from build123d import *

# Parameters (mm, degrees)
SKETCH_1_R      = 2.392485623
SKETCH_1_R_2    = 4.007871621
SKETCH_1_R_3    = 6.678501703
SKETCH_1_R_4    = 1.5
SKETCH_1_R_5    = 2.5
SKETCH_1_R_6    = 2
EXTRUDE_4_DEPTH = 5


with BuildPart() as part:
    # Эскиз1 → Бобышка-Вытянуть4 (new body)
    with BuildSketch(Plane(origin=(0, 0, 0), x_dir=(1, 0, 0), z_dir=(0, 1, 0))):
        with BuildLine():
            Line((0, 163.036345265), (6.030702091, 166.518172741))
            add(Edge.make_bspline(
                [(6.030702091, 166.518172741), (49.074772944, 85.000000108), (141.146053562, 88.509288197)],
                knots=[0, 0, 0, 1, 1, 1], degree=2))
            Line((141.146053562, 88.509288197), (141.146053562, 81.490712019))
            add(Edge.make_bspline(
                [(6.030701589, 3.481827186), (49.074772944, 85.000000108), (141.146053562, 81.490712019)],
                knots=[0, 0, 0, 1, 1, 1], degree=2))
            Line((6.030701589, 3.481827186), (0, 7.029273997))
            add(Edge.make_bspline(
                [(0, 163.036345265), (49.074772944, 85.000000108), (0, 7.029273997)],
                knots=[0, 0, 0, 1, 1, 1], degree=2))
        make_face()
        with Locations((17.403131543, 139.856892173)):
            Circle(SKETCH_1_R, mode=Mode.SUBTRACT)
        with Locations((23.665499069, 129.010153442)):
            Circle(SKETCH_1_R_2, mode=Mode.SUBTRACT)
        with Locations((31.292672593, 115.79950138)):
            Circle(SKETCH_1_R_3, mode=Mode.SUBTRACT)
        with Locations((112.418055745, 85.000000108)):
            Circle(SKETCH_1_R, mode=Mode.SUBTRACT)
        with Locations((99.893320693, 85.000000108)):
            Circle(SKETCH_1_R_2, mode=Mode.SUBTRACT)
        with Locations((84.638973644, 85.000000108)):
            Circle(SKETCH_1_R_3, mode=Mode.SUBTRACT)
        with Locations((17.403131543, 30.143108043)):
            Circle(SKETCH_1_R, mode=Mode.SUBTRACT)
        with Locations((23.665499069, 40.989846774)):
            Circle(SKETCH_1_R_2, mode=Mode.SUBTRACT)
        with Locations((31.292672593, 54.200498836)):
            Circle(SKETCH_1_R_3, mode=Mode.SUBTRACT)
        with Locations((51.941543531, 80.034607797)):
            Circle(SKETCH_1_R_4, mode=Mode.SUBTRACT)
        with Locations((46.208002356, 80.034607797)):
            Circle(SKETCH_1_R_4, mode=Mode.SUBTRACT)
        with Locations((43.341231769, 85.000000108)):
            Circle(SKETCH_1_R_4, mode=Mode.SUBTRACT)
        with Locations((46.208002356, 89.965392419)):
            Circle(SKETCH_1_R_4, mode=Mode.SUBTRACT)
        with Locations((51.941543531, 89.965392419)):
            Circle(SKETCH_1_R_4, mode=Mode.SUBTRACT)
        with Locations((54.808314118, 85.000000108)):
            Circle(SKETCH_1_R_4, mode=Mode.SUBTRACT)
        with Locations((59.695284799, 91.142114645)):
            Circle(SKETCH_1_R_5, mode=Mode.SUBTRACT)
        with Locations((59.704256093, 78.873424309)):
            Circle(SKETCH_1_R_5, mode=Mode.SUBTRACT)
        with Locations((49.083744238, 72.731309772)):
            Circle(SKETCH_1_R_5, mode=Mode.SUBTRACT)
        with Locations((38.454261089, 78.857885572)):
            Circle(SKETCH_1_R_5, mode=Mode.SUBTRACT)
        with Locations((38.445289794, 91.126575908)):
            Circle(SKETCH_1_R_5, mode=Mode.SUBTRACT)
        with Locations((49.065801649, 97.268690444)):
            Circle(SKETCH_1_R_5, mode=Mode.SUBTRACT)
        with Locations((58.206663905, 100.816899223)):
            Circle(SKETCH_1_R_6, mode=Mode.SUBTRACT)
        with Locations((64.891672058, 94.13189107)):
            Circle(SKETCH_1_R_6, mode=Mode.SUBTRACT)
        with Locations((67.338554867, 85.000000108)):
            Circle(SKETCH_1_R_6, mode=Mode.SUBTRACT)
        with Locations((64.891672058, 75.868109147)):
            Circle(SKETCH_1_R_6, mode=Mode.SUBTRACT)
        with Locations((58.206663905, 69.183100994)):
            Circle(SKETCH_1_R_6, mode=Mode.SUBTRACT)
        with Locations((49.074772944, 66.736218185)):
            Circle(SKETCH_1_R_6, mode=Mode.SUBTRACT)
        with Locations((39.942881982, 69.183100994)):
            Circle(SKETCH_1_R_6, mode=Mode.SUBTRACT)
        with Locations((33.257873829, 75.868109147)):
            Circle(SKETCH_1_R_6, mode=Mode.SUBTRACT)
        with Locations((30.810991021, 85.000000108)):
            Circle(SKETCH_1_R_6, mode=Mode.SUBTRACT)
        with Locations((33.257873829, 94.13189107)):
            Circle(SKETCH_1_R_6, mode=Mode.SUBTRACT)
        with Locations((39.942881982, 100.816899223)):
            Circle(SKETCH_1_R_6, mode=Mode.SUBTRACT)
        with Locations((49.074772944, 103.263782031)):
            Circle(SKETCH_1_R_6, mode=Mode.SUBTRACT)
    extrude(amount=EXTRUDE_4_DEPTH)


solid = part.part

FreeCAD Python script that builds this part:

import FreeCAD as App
import Part
import Sketcher
Q = App.Units.Quantity

doc = App.newDocument("Part")
body = doc.addObject("PartDesign::Body", "Body")

sketch1 = doc.addObject("Sketcher::SketchObject", "Sketch")
body.addObject(sketch1)
sketch1.AttachmentSupport = (doc.XZ_Plane, [""])
sketch1.MapMode = "FlatFace"
sketch1.addGeometry([
    Part.LineSegment(App.Vector(6.030702, -166.518173, 0), App.Vector(0, -163.036345, 0)),
    Part.BSplineCurve([App.Vector(0, -163.036345, 0), App.Vector(49.074773, -85, 0), App.Vector(0, -7.029274, 0)], [3, 3], [0, 1], False, 2, [1, 1, 1], False),
    Part.LineSegment(App.Vector(0, -7.029274, 0), App.Vector(6.030702, -3.481827, 0)),
    Part.BSplineCurve([App.Vector(6.030702, -3.481827, 0), App.Vector(49.074773, -85, 0), App.Vector(141.146054, -81.490712, 0)], [3, 3], [0, 1], False, 2, [1, 1, 1], False),
    Part.LineSegment(App.Vector(141.146054, -81.490712, 0), App.Vector(141.146054, -88.509288, 0)),
    Part.BSplineCurve([App.Vector(6.030702, -166.518173, 0), App.Vector(49.074773, -85, 0), App.Vector(141.146054, -88.509288, 0)], [3, 3], [0, 1], False, 2, [1, 1, 1], False),
    Part.Circle(App.Vector(112.418056, -85, 0), App.Vector(0, 0, 1), 2.392486),
    Part.Circle(App.Vector(99.893321, -85, 0), App.Vector(0, 0, 1), 4.007872),
    Part.Circle(App.Vector(84.638974, -85, 0), App.Vector(0, 0, 1), 6.678502),
    Part.Circle(App.Vector(67.338555, -85, 0), App.Vector(0, 0, 1), 2),
    Part.Circle(App.Vector(17.403132, -30.143108, 0), App.Vector(0, 0, 1), 2.392486),
    Part.Circle(App.Vector(23.665499, -40.989847, 0), App.Vector(0, 0, 1), 4.007872),
    Part.Circle(App.Vector(31.292673, -54.200499, 0), App.Vector(0, 0, 1), 6.678502),
    Part.Circle(App.Vector(58.206664, -69.183101, 0), App.Vector(0, 0, 1), 2),
    Part.Circle(App.Vector(49.074773, -66.736218, 0), App.Vector(0, 0, 1), 2),
    Part.Circle(App.Vector(64.891672, -75.868109, 0), App.Vector(0, 0, 1), 2),
    Part.Circle(App.Vector(59.704256, -78.873424, 0), App.Vector(0, 0, 1), 2.5),
    Part.Circle(App.Vector(54.808314, -85, 0), App.Vector(0, 0, 1), 1.5),
    Part.Circle(App.Vector(49.083744, -72.73131, 0), App.Vector(0, 0, 1), 2.5),
    Part.Circle(App.Vector(51.941544, -80.034608, 0), App.Vector(0, 0, 1), 1.5),
    Part.Circle(App.Vector(46.208002, -80.034608, 0), App.Vector(0, 0, 1), 1.5),
    Part.Circle(App.Vector(43.341232, -85, 0), App.Vector(0, 0, 1), 1.5),
    Part.Circle(App.Vector(39.942882, -69.183101, 0), App.Vector(0, 0, 1), 2),
    Part.Circle(App.Vector(33.257874, -75.868109, 0), App.Vector(0, 0, 1), 2),
    Part.Circle(App.Vector(38.454261, -78.857886, 0), App.Vector(0, 0, 1), 2.5),
    Part.Circle(App.Vector(30.810991, -85, 0), App.Vector(0, 0, 1), 2),
    Part.Circle(App.Vector(59.695285, -91.142115, 0), App.Vector(0, 0, 1), 2.5),
    Part.Circle(App.Vector(64.891672, -94.131891, 0), App.Vector(0, 0, 1), 2),
    Part.Circle(App.Vector(51.941544, -89.965392, 0), App.Vector(0, 0, 1), 1.5),
    Part.Circle(App.Vector(46.208002, -89.965392, 0), App.Vector(0, 0, 1), 1.5),
    Part.Circle(App.Vector(49.065802, -97.26869, 0), App.Vector(0, 0, 1), 2.5),
    Part.Circle(App.Vector(58.206664, -100.816899, 0), App.Vector(0, 0, 1), 2),
    Part.Circle(App.Vector(49.074773, -103.263782, 0), App.Vector(0, 0, 1), 2),
    Part.Circle(App.Vector(38.44529, -91.126576, 0), App.Vector(0, 0, 1), 2.5),
    Part.Circle(App.Vector(33.257874, -94.131891, 0), App.Vector(0, 0, 1), 2),
    Part.Circle(App.Vector(39.942882, -100.816899, 0), App.Vector(0, 0, 1), 2),
    Part.Circle(App.Vector(31.292673, -115.799501, 0), App.Vector(0, 0, 1), 6.678502),
    Part.Circle(App.Vector(23.665499, -129.010153, 0), App.Vector(0, 0, 1), 4.007872),
    Part.Circle(App.Vector(17.403132, -139.856892, 0), App.Vector(0, 0, 1), 2.392486),
], False)
sketch1.addConstraint([
    Sketcher.Constraint("Block", 1),
    Sketcher.Constraint("Block", 3),
    Sketcher.Constraint("Block", 5),
    Sketcher.Constraint("Coincident", 0, 2, 1, 1),
    Sketcher.Constraint("Coincident", 1, 2, 2, 1),
    Sketcher.Constraint("Coincident", 2, 2, 3, 1),
    Sketcher.Constraint("Coincident", 3, 2, 4, 1),
    Sketcher.Constraint("Coincident", 4, 2, 5, 2),
    Sketcher.Constraint("Coincident", 5, 1, 0, 1),
    Sketcher.Constraint("Equal", 6, 10),
    Sketcher.Constraint("Equal", 7, 11),
    Sketcher.Constraint("Equal", 8, 12),
    Sketcher.Constraint("Equal", 9, 13),
    Sketcher.Constraint("Equal", 13, 14),
    Sketcher.Constraint("Equal", 14, 15),
    Sketcher.Constraint("Equal", 16, 18),
    Sketcher.Constraint("Equal", 17, 19),
    Sketcher.Constraint("Equal", 19, 20),
    Sketcher.Constraint("Equal", 20, 21),
    Sketcher.Constraint("Equal", 15, 22),
    Sketcher.Constraint("Equal", 22, 23),
    Sketcher.Constraint("Equal", 18, 24),
    Sketcher.Constraint("Equal", 23, 25),
    Sketcher.Constraint("Equal", 24, 26),
    Sketcher.Constraint("Equal", 25, 27),
    Sketcher.Constraint("Equal", 21, 28),
    Sketcher.Constraint("Equal", 28, 29),
    Sketcher.Constraint("Equal", 26, 30),
    Sketcher.Constraint("Equal", 27, 31),
    Sketcher.Constraint("Equal", 31, 32),
    Sketcher.Constraint("Equal", 30, 33),
    Sketcher.Constraint("Equal", 32, 34),
    Sketcher.Constraint("Equal", 34, 35),
    Sketcher.Constraint("Equal", 12, 36),
    Sketcher.Constraint("Equal", 11, 37),
    Sketcher.Constraint("Equal", 10, 38),
    Sketcher.Constraint("Horizontal", 6, 3, 7, 3),
    Sketcher.Constraint("Horizontal", 7, 3, 8, 3),
    Sketcher.Constraint("Horizontal", 8, 3, 9, 3),
    Sketcher.Constraint("Horizontal", 9, 3, 17, 3),
    Sketcher.Constraint("Horizontal", 19, 3, 20, 3),
    Sketcher.Constraint("Horizontal", 17, 3, 21, 3),
    Sketcher.Constraint("Horizontal", 13, 3, 22, 3),
    Sketcher.Constraint("Horizontal", 15, 3, 23, 3),
    Sketcher.Constraint("Horizontal", 21, 3, 25, 3),
    Sketcher.Constraint("Horizontal", 28, 3, 29, 3),
    Sketcher.Constraint("Horizontal", 27, 3, 34, 3),
    Sketcher.Constraint("Horizontal", 31, 3, 35, 3),
    Sketcher.Constraint("Vertical", 15, 3, 27, 3),
    Sketcher.Constraint("Vertical", 19, 3, 28, 3),
    Sketcher.Constraint("Vertical", 20, 3, 29, 3),
    Sketcher.Constraint("Vertical", 13, 3, 31, 3),
    Sketcher.Constraint("Vertical", 14, 3, 32, 3),
    Sketcher.Constraint("Vertical", 23, 3, 34, 3),
    Sketcher.Constraint("Vertical", 22, 3, 35, 3),
    Sketcher.Constraint("Vertical", 12, 3, 36, 3),
    Sketcher.Constraint("Vertical", 11, 3, 37, 3),
    Sketcher.Constraint("Vertical", 10, 3, 38, 3),
    Sketcher.Constraint("Diameter", 9, Q("4 mm")),
    Sketcher.Constraint("Diameter", 16, Q("5 mm")),
    Sketcher.Constraint("Diameter", 17, Q("3 mm")),
    Sketcher.Constraint("DistanceY", 6, 3, -1, 1, Q("85 mm")),
    Sketcher.Constraint("Diameter", 6, Q("4.784971 mm")),
    Sketcher.Constraint("Diameter", 7, Q("8.015743 mm")),
    Sketcher.Constraint("Diameter", 8, Q("13.357003 mm")),
    Sketcher.Constraint("DistanceY", 38, 3, 34, 3, Q("45.725001 mm")),
    Sketcher.Constraint("DistanceX", -1, 1, 11, 3, Q("23.665499 mm")),
    Sketcher.Constraint("DistanceY", 12, 3, -1, 1, Q("54.200499 mm")),
    Sketcher.Constraint("DistanceY", 13, 3, -1, 1, Q("69.183101 mm")),
    Sketcher.Constraint("DistanceX", -1, 1, 30, 3, Q("49.065802 mm")),
    Sketcher.Constraint("DistanceY", 31, 3, -1, 1, Q("100.816899 mm")),
    Sketcher.Constraint("DistanceY", 36, 3, -1, 1, Q("115.799501 mm")),
    Sketcher.Constraint("DistanceX", 9, 3, 6, 3, Q("45.079501 mm")),
    Sketcher.Constraint("DistanceX", 12, 3, 8, 3, Q("53.346301 mm")),
    Sketcher.Constraint("DistanceX", 12, 3, 14, 3, Q("17.7821 mm")),
    Sketcher.Constraint("DistanceX", 14, 3, 15, 3, Q("15.816899 mm")),
    Sketcher.Constraint("DistanceX", 16, 3, 9, 3, Q("7.634299 mm")),
    Sketcher.Constraint("DistanceY", 15, 3, 18, 3, Q("3.136799 mm")),
    Sketcher.Constraint("DistanceX", 18, 3, 19, 3, Q("2.857799 mm")),
    Sketcher.Constraint("DistanceY", 19, 3, 18, 3, Q("7.303298 mm")),
    Sketcher.Constraint("DistanceX", 23, 3, 14, 3, Q("15.816899 mm")),
    Sketcher.Constraint("DistanceX", 29, 3, 30, 3, Q("2.857799 mm")),
    Sketcher.Constraint("DistanceY", 30, 3, 29, 3, Q("7.303298 mm")),
    Sketcher.Constraint("DistanceX", 25, 3, 33, 3, Q("7.634299 mm")),
    Sketcher.Constraint("DistanceY", 34, 3, 29, 3, Q("4.166499 mm")),
    Sketcher.Constraint("DistanceX", 9, 3, 4, 2, Q("73.807499 mm")),
    Sketcher.Constraint("DistanceX", -1, 1, 7, 3, Q("99.893321 mm")),
    Sketcher.Constraint("DistanceX", -1, 1, 10, 3, Q("17.403132 mm")),
    Sketcher.Constraint("DistanceY", 10, 3, -1, 1, Q("30.143108 mm")),
    Sketcher.Constraint("DistanceY", 14, 3, -1, 1, Q("66.736218 mm")),
    Sketcher.Constraint("DistanceY", 15, 3, -1, 1, Q("75.868109 mm")),
    Sketcher.Constraint("DistanceX", -1, 1, 21, 3, Q("43.341232 mm")),
    Sketcher.Constraint("DistanceX", -1, 1, 22, 3, Q("39.942882 mm")),
    Sketcher.Constraint("DistanceX", -1, 1, 24, 3, Q("38.454261 mm")),
    Sketcher.Constraint("DistanceX", -1, 1, 25, 3, Q("30.810991 mm")),
    Sketcher.Constraint("DistanceY", 27, 3, -1, 1, Q("94.131891 mm")),
    Sketcher.Constraint("DistanceX", 9, 3, 8, 3, Q("17.300419 mm")),
    Sketcher.Constraint("DistanceY", 11, 3, 10, 3, Q("10.846739 mm")),
    Sketcher.Constraint("DistanceX", 13, 3, 9, 3, Q("9.131891 mm")),
    Sketcher.Constraint("DistanceX", 17, 3, 16, 3, Q("4.895942 mm")),
    Sketcher.Constraint("DistanceX", 14, 3, 18, 3, Q("0.008971 mm")),
    Sketcher.Constraint("DistanceX", 17, 3, 26, 3, Q("4.886971 mm")),
    Sketcher.Constraint("DistanceY", 26, 3, 16, 3, Q("12.26869 mm")),
    Sketcher.Constraint("DistanceY", 32, 3, 30, 3, Q("5.995092 mm")),
    Sketcher.Constraint("DistanceY", 33, 3, 24, 3, Q("12.26869 mm")),
    Sketcher.Constraint("DistanceY", 37, 3, 32, 3, Q("25.746371 mm")),
    Sketcher.Constraint("DistanceY", 16, 3, -1, 1, Q("78.873424 mm")),
    Sketcher.Constraint("DistanceY", 24, 3, -1, 1, Q("78.857886 mm")),
])
pad1 = doc.addObject("PartDesign::Pad", "Pad")
body.addObject(pad1)
pad1.Profile = sketch1
pad1.Length = 5
pad1.Reversed = True

doc.recompute()
